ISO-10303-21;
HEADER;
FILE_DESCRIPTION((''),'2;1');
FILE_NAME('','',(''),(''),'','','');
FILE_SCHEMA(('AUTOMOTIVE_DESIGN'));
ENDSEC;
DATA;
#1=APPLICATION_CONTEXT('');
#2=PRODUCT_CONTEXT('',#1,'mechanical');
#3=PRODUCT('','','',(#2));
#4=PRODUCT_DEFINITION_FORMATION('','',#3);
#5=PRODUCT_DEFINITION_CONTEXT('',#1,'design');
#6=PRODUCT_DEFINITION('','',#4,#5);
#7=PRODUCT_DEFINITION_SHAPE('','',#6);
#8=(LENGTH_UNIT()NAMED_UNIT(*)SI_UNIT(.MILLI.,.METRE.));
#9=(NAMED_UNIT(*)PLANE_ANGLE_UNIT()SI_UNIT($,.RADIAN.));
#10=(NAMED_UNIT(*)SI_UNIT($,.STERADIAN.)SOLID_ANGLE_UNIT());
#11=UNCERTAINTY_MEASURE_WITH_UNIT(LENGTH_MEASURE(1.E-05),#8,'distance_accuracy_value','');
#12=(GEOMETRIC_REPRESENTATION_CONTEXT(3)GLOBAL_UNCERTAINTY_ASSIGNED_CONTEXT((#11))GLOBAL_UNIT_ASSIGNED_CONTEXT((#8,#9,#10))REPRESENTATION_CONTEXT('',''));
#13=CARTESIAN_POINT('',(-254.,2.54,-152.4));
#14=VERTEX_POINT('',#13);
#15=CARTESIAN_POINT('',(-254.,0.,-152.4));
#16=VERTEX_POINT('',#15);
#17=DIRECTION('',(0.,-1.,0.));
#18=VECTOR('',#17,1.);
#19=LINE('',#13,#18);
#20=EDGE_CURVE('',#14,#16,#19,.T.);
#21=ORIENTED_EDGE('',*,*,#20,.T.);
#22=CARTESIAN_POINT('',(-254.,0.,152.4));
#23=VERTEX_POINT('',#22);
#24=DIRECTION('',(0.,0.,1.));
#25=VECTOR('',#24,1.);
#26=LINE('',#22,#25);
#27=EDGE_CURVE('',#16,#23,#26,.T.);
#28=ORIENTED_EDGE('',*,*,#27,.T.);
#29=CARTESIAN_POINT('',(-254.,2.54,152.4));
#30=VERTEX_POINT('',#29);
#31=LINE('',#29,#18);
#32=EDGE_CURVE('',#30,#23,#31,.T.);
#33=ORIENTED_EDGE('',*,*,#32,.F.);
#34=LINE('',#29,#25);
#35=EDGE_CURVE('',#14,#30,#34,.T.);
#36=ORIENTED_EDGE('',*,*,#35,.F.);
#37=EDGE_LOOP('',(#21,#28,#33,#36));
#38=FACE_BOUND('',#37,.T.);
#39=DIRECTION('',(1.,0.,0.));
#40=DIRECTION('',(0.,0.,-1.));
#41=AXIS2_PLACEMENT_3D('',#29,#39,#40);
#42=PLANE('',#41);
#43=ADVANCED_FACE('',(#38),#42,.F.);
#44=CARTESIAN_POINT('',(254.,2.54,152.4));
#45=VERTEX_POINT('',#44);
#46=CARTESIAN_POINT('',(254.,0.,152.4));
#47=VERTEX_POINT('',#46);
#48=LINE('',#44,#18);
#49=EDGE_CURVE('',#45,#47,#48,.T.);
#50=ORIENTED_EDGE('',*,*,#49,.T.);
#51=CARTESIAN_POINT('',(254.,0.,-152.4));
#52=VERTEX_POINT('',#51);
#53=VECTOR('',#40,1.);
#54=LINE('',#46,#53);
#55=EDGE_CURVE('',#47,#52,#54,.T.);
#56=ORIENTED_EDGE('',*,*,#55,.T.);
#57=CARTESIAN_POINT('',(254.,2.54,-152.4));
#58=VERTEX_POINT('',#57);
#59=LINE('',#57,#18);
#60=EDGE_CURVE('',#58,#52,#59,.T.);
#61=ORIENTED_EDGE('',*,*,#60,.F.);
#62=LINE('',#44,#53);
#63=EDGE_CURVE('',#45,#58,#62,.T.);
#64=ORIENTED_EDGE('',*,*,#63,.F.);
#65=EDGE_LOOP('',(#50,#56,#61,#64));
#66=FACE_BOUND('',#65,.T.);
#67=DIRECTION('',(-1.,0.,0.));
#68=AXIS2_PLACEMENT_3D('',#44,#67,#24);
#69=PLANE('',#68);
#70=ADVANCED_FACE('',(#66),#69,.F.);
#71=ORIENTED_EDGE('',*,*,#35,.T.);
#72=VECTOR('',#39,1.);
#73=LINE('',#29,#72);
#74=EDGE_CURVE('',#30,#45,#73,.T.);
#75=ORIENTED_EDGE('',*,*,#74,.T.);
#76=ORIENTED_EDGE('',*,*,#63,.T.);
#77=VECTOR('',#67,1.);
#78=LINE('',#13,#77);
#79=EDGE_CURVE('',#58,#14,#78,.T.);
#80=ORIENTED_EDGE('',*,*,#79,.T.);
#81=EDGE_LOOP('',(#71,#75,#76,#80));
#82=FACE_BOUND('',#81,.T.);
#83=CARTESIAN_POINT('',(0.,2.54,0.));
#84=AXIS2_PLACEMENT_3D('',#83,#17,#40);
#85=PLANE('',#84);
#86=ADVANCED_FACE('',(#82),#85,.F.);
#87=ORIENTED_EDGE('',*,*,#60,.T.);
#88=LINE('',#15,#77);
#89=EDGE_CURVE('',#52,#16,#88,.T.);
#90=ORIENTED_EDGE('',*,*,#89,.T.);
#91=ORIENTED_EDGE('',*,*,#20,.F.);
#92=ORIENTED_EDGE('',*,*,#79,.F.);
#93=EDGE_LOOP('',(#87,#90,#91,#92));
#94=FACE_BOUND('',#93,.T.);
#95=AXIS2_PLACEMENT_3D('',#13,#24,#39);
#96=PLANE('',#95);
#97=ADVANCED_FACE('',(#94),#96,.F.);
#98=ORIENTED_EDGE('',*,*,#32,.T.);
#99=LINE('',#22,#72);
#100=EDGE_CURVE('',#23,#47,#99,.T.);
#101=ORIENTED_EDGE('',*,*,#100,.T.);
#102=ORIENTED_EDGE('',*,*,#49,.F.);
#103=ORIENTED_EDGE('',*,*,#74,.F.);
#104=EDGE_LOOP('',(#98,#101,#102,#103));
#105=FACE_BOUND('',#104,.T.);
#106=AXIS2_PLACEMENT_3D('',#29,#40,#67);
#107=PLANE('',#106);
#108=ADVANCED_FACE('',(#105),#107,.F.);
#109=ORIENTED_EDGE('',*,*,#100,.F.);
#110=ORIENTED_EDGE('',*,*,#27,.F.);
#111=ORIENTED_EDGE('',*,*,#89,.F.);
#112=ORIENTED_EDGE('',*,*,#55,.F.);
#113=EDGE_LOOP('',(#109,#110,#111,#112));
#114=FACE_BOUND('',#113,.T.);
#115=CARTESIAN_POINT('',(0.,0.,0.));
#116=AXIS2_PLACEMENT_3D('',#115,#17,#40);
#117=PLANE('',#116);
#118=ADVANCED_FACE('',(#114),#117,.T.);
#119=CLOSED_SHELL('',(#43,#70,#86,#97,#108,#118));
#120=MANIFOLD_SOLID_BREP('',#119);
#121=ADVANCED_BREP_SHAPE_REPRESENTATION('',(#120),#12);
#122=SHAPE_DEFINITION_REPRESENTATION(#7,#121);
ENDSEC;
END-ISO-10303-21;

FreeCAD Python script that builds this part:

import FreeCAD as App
import Part
import Sketcher
Q = App.Units.Quantity


def add_polygon(sketch, points):
    """Adds a closed chain of lines whose ends are joined by coincident constraints."""
    first, n = sketch.GeometryCount, len(points)
    for a, b in zip(points, points[1:] + points[:1]):
        sketch.addGeometry(Part.LineSegment(App.Vector(*a, 0), App.Vector(*b, 0)), False)
    for i in range(n):
        sketch.addConstraint(Sketcher.Constraint("Coincident", first + i, 2, first + (i + 1) % n, 1))

doc = App.newDocument("Part")
params = doc.addObject("Spreadsheet::Sheet", "Params")
for row, (alias, value) in enumerate([
    ("sketch1_width", "20 in"),
    ("sketch1_height", "12 in"),
    ("pad1_length", "0.1 in"),
], start=1):
    params.set(f"A{row}", alias)
    params.set(f"B{row}", "=" + value)
    params.setAlias(f"B{row}", alias)

body = doc.addObject("PartDesign::Body", "Body")

sketch1 = doc.addObject("Sketcher::SketchObject", "Sketch")
body.addObject(sketch1)
sketch1.AttachmentSupport = (doc.XZ_Plane, [""])
sketch1.MapMode = "FlatFace"
add_polygon(sketch1, [(-254, -152), (-254, 152), (254, 152), (254, -152)])
sketch1.addConstraint(Sketcher.Constraint("Vertical", 0))
sketch1.addConstraint(Sketcher.Constraint("Horizontal", 1))
sketch1.addConstraint(Sketcher.Constraint("Vertical", 2))
sketch1.addConstraint(Sketcher.Constraint("Horizontal", 3))
sketch1.addConstraint(Sketcher.Constraint("Symmetric", 0, 2, 2, 2, -1, 1))
sketch1.addConstraint(Sketcher.Constraint("DistanceX", 1, 1, 1, 2, Q("20 in")))
sketch1.addConstraint(Sketcher.Constraint("DistanceY", 0, 1, 0, 2, Q("12 in")))
sketch1.setExpression("Constraints[9]", "Params.sketch1_width")
sketch1.setExpression("Constraints[10]", "Params.sketch1_height")
pad1 = doc.addObject("PartDesign::Pad", "Pad")
body.addObject(pad1)
pad1.Profile = sketch1
pad1.setExpression("Length", "Params.pad1_length")
pad1.Reversed = True

doc.recompute()
